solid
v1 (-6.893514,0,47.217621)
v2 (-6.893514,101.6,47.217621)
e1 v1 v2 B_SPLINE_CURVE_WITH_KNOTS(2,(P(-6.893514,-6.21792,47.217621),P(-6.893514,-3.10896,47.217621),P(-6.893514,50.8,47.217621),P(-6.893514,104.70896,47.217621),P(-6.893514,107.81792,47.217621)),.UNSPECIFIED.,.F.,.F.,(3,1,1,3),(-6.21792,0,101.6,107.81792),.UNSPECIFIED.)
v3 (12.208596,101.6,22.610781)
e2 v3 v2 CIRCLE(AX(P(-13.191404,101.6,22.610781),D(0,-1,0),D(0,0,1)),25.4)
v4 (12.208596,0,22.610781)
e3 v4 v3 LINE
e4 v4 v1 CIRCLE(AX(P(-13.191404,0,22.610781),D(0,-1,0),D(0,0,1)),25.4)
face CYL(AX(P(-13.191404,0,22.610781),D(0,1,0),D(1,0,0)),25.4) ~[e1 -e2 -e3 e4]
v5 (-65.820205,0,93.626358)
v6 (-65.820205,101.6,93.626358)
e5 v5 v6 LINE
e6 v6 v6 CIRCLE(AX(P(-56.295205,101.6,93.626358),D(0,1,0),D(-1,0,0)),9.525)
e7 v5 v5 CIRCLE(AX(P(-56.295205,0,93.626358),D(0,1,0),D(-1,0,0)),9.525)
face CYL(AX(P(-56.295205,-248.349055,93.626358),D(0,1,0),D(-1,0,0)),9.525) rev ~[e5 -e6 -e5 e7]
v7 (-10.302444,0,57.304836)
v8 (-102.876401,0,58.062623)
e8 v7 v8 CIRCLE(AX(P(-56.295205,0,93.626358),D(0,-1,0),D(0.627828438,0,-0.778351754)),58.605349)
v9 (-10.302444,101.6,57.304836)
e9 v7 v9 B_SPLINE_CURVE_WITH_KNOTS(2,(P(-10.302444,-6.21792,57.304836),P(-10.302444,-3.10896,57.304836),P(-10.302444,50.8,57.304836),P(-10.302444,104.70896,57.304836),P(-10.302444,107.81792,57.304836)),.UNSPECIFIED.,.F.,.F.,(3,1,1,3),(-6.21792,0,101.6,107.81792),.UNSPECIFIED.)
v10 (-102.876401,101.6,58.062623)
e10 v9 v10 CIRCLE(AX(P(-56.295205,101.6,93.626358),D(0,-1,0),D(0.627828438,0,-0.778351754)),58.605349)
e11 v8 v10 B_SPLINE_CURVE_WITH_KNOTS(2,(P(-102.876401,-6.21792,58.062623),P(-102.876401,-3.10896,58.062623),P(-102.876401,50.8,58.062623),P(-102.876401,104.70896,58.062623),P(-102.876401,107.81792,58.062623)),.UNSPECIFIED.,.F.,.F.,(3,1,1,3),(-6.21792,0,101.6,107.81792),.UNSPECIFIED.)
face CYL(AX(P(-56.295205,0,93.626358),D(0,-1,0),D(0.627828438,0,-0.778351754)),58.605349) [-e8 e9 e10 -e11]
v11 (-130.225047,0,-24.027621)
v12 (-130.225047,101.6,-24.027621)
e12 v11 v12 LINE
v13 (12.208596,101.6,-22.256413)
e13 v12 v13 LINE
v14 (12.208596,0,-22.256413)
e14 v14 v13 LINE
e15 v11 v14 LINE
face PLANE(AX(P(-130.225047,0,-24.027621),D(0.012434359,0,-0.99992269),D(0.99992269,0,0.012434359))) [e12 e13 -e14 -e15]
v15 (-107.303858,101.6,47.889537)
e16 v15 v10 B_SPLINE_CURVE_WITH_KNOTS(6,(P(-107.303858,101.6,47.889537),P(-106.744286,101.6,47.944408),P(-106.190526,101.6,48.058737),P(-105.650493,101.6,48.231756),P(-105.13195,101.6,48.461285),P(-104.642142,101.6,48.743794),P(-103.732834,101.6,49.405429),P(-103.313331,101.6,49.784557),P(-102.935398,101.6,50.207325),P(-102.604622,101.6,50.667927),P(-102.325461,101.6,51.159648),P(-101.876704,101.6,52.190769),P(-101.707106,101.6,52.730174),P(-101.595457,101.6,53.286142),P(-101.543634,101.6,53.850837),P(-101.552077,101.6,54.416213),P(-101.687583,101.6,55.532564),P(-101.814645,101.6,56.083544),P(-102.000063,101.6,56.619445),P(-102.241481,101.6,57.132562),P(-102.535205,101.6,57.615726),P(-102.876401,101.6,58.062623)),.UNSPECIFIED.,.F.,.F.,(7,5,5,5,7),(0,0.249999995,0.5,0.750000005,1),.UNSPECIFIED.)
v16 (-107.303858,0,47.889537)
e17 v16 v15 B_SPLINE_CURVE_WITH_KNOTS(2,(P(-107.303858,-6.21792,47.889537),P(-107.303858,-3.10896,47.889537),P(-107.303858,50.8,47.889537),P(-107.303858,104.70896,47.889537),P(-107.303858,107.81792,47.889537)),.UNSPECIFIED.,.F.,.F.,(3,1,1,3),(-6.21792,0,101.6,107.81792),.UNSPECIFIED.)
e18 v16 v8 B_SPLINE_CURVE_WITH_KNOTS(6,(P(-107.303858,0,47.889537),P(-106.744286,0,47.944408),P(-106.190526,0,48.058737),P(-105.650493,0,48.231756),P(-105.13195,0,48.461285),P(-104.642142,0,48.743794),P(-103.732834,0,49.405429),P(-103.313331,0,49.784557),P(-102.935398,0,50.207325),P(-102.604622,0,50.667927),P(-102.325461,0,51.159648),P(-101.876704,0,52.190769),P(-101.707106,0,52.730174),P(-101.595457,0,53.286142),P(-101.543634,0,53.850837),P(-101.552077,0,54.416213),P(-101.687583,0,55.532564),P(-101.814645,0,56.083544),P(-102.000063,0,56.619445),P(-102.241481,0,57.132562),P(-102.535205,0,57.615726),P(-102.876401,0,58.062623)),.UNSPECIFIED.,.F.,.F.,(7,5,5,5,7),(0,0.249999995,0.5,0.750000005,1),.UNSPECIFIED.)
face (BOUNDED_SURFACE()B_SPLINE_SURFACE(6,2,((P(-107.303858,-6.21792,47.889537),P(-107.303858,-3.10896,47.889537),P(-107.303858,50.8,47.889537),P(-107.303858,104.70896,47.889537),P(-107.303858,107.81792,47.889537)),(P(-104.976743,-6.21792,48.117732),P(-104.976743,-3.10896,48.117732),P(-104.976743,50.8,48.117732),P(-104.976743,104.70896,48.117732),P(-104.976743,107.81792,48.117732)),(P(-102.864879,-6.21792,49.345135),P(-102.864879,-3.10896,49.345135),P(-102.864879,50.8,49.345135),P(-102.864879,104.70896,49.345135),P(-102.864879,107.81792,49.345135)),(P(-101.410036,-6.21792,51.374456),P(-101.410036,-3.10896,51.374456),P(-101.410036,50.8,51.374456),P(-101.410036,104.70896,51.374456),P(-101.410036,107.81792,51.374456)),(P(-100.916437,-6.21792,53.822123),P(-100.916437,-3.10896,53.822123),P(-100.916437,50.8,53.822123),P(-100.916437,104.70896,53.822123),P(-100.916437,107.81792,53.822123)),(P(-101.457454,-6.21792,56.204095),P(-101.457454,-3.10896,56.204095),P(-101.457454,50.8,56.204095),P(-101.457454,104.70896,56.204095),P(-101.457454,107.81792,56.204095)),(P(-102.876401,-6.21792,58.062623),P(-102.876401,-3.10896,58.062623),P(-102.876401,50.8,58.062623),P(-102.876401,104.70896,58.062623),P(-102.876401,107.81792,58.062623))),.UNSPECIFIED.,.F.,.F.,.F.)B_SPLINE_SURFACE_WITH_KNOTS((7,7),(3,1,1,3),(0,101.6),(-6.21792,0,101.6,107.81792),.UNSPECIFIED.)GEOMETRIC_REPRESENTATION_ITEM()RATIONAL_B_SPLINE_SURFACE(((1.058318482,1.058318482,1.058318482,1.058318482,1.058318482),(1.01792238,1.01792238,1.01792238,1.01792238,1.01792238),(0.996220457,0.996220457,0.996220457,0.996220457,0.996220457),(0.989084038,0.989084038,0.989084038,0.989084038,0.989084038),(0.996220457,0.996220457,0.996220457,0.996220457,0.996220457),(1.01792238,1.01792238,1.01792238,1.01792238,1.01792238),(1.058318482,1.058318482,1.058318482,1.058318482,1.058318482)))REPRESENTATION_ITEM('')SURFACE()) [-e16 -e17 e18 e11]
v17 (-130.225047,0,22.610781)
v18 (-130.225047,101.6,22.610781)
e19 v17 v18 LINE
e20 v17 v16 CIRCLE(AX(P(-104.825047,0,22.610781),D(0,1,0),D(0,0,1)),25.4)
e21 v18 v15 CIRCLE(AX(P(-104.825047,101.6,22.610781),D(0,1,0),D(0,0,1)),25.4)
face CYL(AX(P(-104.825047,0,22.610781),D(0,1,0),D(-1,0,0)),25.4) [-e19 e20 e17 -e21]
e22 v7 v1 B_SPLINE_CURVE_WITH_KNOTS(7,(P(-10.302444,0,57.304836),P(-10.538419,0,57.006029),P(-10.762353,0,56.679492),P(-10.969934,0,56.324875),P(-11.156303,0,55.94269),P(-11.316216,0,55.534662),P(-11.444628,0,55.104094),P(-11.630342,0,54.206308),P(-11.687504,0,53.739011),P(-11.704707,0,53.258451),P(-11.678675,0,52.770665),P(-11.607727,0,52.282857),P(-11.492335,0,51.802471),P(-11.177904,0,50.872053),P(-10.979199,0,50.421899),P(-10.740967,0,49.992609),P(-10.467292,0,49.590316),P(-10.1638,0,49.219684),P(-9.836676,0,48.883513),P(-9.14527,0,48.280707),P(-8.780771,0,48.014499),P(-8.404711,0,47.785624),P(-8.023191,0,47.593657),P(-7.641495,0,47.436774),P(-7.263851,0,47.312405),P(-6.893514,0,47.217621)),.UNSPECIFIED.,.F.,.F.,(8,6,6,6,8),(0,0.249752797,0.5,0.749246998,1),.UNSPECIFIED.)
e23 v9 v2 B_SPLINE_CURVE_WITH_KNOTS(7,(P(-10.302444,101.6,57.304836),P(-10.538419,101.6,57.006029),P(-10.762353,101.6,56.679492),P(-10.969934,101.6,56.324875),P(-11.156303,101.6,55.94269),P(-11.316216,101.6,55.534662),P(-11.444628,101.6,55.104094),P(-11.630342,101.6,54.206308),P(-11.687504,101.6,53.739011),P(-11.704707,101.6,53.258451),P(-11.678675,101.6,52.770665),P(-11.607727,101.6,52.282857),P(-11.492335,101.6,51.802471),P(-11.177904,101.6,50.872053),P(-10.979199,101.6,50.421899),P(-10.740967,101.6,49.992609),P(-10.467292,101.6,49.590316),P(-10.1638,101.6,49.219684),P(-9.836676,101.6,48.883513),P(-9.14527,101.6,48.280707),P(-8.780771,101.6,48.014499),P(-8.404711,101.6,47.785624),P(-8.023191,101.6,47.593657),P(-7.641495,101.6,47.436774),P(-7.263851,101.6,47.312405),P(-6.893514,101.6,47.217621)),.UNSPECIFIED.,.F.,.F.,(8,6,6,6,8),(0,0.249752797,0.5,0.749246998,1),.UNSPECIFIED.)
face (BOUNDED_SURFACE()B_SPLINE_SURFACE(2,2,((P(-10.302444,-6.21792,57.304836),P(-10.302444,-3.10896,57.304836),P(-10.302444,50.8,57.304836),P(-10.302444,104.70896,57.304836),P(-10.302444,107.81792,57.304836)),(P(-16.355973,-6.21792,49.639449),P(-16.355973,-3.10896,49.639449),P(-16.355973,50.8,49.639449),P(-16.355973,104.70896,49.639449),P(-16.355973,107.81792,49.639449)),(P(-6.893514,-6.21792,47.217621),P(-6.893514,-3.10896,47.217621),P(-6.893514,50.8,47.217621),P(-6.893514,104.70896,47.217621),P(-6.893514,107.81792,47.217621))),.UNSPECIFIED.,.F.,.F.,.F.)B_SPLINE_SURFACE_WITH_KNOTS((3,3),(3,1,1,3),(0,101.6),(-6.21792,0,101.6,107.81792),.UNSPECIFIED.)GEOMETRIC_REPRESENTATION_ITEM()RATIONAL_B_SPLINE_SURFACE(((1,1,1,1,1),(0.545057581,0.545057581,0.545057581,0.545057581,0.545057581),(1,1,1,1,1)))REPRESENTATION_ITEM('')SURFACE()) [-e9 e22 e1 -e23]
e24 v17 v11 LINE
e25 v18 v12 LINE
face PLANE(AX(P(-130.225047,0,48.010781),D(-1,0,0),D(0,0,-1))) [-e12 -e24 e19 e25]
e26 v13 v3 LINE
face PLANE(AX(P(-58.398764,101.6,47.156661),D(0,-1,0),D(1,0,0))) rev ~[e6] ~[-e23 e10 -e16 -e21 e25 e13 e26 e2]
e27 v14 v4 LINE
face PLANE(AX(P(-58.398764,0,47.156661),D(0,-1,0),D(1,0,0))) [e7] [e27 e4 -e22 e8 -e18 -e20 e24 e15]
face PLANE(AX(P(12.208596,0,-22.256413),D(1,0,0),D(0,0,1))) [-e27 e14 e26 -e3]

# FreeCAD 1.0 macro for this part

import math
import FreeCAD as App
import Part
import Sketcher

V = App.Vector
Q = App.Units.Quantity


def edges_at(feature, points):
    """Names of the edges that pass closest to the given points."""
    edges = feature.Shape.Edges
    near = lambda p: min(range(len(edges)), key=lambda i: edges[i].distToShape(Part.Vertex(*p))[0])
    return sorted({f"Edge{near(p) + 1}" for p in points})

doc = App.newDocument("Part")
body = doc.addObject("PartDesign::Body", "Body")

sketch1 = doc.addObject("Sketcher::SketchObject", "Sketch")
body.addObject(sketch1)
sketch1.AttachmentSupport = (doc.XZ_Plane, [""])
sketch1.MapMode = "FlatFace"
sketch1.addGeometry([
    Part.LineSegment(V(-130, 48, 0), V(-130, -24, 0)),
    Part.LineSegment(V(-130, -24, 0), V(12, -22, 0)),
    Part.LineSegment(V(12, -22, 0), V(12, 48, 0)),
    Part.LineSegment(V(12, 48, 0), V(-20, 48, 0)),
    Part.ArcOfCircle(Part.Circle(V(-56, 94, 0), V(0, 0, 1), 59), math.radians(-51), math.radians(231)),
    Part.LineSegment(V(-93, 48, 0), V(-130, 48, 0)),
], False)
sketch1.addConstraint([
    Sketcher.Constraint("Coincident", 0, 2, 1, 1),
    Sketcher.Constraint("Coincident", 1, 2, 2, 1),
    Sketcher.Constraint("Coincident", 2, 2, 3, 1),
    Sketcher.Constraint("Coincident", 3, 2, 4, 1),
    Sketcher.Constraint("Coincident", 4, 2, 5, 1),
    Sketcher.Constraint("Coincident", 5, 2, 0, 1),
    Sketcher.Constraint("Vertical", 0),
    Sketcher.Constraint("Vertical", 2),
    Sketcher.Constraint("Horizontal", 3),
    Sketcher.Constraint("Horizontal", 5),
    Sketcher.Constraint("Horizontal", 3, 2, 4, 2),
    Sketcher.Constraint("Radius", 4, Q("58.605349 mm")),
    Sketcher.Constraint("DistanceX", 4, 3, 1, 2, Q("2.697 in")),
    Sketcher.Constraint("DistanceX", 3, 2, -1, 1, Q("19.5011 mm")),
    Sketcher.Constraint("DistanceX", 3, 2, 3, 1, Q("31.709696 mm")),
    Sketcher.Constraint("DistanceX", 5, 2, 5, 1, Q("37.135737 mm")),
    Sketcher.Constraint("DistanceY", 0, 2, 0, 1, Q("72.038402 mm")),
    Sketcher.Constraint("DistanceY", 2, 1, 2, 2, Q("70.267194 mm")),
    Sketcher.Constraint("DistanceY", 0, 2, -1, 1, Q("24.027621 mm")),
])
pad1 = doc.addObject("PartDesign::Pad", "Pad")
body.addObject(pad1)
pad1.Profile = sketch1
pad1.Length = Q("4 in")
pad1.Reversed = True

sketch2 = doc.addObject("Sketcher::SketchObject", "Sketch001")
body.addObject(sketch2)
sketch2.AttachmentSupport = (doc.XZ_Plane, [""])
sketch2.MapMode = "FlatFace"
sketch2.addGeometry(Part.Circle(V(-56, 94, 0), V(0, 0, 1), 10), False)
sketch2.addConstraint([
    Sketcher.Constraint("Diameter", 0, Q("0.75 in")),
    Sketcher.Constraint("DistanceX", 0, 3, -1, 1, Q("56.295205 mm")),
    Sketcher.Constraint("DistanceY", -1, 1, 0, 3, Q("93.626358 mm")),
])
doc.recompute()
hole = doc.addObject("PartDesign::Hole", "Hole")
body.addObject(hole)
hole.Profile = sketch2
hole.ThreadType = "None"
hole.Diameter = Q("0.75 in")
hole.DepthType = "ThroughAll"
doc.recompute()

fillet = doc.addObject("PartDesign::Fillet", "Fillet")
body.addObject(fillet)
fillet.Base = (hole, edges_at(hole, [(-130.225, 50.8, 48.011), (12.209, 50.8, 48.011)]))
fillet.Radius = Q("1 in")
doc.recompute()

fillet2 = doc.addObject("PartDesign::Fillet", "Fillet001")
body.addObject(fillet2)
fillet2.Base = (fillet, edges_at(fillet, [(-19.501, 50.8, 48.011), (-93.089, 50.8, 48.011)]))
fillet2.Radius = Q("0.25 in")

doc.recompute()
